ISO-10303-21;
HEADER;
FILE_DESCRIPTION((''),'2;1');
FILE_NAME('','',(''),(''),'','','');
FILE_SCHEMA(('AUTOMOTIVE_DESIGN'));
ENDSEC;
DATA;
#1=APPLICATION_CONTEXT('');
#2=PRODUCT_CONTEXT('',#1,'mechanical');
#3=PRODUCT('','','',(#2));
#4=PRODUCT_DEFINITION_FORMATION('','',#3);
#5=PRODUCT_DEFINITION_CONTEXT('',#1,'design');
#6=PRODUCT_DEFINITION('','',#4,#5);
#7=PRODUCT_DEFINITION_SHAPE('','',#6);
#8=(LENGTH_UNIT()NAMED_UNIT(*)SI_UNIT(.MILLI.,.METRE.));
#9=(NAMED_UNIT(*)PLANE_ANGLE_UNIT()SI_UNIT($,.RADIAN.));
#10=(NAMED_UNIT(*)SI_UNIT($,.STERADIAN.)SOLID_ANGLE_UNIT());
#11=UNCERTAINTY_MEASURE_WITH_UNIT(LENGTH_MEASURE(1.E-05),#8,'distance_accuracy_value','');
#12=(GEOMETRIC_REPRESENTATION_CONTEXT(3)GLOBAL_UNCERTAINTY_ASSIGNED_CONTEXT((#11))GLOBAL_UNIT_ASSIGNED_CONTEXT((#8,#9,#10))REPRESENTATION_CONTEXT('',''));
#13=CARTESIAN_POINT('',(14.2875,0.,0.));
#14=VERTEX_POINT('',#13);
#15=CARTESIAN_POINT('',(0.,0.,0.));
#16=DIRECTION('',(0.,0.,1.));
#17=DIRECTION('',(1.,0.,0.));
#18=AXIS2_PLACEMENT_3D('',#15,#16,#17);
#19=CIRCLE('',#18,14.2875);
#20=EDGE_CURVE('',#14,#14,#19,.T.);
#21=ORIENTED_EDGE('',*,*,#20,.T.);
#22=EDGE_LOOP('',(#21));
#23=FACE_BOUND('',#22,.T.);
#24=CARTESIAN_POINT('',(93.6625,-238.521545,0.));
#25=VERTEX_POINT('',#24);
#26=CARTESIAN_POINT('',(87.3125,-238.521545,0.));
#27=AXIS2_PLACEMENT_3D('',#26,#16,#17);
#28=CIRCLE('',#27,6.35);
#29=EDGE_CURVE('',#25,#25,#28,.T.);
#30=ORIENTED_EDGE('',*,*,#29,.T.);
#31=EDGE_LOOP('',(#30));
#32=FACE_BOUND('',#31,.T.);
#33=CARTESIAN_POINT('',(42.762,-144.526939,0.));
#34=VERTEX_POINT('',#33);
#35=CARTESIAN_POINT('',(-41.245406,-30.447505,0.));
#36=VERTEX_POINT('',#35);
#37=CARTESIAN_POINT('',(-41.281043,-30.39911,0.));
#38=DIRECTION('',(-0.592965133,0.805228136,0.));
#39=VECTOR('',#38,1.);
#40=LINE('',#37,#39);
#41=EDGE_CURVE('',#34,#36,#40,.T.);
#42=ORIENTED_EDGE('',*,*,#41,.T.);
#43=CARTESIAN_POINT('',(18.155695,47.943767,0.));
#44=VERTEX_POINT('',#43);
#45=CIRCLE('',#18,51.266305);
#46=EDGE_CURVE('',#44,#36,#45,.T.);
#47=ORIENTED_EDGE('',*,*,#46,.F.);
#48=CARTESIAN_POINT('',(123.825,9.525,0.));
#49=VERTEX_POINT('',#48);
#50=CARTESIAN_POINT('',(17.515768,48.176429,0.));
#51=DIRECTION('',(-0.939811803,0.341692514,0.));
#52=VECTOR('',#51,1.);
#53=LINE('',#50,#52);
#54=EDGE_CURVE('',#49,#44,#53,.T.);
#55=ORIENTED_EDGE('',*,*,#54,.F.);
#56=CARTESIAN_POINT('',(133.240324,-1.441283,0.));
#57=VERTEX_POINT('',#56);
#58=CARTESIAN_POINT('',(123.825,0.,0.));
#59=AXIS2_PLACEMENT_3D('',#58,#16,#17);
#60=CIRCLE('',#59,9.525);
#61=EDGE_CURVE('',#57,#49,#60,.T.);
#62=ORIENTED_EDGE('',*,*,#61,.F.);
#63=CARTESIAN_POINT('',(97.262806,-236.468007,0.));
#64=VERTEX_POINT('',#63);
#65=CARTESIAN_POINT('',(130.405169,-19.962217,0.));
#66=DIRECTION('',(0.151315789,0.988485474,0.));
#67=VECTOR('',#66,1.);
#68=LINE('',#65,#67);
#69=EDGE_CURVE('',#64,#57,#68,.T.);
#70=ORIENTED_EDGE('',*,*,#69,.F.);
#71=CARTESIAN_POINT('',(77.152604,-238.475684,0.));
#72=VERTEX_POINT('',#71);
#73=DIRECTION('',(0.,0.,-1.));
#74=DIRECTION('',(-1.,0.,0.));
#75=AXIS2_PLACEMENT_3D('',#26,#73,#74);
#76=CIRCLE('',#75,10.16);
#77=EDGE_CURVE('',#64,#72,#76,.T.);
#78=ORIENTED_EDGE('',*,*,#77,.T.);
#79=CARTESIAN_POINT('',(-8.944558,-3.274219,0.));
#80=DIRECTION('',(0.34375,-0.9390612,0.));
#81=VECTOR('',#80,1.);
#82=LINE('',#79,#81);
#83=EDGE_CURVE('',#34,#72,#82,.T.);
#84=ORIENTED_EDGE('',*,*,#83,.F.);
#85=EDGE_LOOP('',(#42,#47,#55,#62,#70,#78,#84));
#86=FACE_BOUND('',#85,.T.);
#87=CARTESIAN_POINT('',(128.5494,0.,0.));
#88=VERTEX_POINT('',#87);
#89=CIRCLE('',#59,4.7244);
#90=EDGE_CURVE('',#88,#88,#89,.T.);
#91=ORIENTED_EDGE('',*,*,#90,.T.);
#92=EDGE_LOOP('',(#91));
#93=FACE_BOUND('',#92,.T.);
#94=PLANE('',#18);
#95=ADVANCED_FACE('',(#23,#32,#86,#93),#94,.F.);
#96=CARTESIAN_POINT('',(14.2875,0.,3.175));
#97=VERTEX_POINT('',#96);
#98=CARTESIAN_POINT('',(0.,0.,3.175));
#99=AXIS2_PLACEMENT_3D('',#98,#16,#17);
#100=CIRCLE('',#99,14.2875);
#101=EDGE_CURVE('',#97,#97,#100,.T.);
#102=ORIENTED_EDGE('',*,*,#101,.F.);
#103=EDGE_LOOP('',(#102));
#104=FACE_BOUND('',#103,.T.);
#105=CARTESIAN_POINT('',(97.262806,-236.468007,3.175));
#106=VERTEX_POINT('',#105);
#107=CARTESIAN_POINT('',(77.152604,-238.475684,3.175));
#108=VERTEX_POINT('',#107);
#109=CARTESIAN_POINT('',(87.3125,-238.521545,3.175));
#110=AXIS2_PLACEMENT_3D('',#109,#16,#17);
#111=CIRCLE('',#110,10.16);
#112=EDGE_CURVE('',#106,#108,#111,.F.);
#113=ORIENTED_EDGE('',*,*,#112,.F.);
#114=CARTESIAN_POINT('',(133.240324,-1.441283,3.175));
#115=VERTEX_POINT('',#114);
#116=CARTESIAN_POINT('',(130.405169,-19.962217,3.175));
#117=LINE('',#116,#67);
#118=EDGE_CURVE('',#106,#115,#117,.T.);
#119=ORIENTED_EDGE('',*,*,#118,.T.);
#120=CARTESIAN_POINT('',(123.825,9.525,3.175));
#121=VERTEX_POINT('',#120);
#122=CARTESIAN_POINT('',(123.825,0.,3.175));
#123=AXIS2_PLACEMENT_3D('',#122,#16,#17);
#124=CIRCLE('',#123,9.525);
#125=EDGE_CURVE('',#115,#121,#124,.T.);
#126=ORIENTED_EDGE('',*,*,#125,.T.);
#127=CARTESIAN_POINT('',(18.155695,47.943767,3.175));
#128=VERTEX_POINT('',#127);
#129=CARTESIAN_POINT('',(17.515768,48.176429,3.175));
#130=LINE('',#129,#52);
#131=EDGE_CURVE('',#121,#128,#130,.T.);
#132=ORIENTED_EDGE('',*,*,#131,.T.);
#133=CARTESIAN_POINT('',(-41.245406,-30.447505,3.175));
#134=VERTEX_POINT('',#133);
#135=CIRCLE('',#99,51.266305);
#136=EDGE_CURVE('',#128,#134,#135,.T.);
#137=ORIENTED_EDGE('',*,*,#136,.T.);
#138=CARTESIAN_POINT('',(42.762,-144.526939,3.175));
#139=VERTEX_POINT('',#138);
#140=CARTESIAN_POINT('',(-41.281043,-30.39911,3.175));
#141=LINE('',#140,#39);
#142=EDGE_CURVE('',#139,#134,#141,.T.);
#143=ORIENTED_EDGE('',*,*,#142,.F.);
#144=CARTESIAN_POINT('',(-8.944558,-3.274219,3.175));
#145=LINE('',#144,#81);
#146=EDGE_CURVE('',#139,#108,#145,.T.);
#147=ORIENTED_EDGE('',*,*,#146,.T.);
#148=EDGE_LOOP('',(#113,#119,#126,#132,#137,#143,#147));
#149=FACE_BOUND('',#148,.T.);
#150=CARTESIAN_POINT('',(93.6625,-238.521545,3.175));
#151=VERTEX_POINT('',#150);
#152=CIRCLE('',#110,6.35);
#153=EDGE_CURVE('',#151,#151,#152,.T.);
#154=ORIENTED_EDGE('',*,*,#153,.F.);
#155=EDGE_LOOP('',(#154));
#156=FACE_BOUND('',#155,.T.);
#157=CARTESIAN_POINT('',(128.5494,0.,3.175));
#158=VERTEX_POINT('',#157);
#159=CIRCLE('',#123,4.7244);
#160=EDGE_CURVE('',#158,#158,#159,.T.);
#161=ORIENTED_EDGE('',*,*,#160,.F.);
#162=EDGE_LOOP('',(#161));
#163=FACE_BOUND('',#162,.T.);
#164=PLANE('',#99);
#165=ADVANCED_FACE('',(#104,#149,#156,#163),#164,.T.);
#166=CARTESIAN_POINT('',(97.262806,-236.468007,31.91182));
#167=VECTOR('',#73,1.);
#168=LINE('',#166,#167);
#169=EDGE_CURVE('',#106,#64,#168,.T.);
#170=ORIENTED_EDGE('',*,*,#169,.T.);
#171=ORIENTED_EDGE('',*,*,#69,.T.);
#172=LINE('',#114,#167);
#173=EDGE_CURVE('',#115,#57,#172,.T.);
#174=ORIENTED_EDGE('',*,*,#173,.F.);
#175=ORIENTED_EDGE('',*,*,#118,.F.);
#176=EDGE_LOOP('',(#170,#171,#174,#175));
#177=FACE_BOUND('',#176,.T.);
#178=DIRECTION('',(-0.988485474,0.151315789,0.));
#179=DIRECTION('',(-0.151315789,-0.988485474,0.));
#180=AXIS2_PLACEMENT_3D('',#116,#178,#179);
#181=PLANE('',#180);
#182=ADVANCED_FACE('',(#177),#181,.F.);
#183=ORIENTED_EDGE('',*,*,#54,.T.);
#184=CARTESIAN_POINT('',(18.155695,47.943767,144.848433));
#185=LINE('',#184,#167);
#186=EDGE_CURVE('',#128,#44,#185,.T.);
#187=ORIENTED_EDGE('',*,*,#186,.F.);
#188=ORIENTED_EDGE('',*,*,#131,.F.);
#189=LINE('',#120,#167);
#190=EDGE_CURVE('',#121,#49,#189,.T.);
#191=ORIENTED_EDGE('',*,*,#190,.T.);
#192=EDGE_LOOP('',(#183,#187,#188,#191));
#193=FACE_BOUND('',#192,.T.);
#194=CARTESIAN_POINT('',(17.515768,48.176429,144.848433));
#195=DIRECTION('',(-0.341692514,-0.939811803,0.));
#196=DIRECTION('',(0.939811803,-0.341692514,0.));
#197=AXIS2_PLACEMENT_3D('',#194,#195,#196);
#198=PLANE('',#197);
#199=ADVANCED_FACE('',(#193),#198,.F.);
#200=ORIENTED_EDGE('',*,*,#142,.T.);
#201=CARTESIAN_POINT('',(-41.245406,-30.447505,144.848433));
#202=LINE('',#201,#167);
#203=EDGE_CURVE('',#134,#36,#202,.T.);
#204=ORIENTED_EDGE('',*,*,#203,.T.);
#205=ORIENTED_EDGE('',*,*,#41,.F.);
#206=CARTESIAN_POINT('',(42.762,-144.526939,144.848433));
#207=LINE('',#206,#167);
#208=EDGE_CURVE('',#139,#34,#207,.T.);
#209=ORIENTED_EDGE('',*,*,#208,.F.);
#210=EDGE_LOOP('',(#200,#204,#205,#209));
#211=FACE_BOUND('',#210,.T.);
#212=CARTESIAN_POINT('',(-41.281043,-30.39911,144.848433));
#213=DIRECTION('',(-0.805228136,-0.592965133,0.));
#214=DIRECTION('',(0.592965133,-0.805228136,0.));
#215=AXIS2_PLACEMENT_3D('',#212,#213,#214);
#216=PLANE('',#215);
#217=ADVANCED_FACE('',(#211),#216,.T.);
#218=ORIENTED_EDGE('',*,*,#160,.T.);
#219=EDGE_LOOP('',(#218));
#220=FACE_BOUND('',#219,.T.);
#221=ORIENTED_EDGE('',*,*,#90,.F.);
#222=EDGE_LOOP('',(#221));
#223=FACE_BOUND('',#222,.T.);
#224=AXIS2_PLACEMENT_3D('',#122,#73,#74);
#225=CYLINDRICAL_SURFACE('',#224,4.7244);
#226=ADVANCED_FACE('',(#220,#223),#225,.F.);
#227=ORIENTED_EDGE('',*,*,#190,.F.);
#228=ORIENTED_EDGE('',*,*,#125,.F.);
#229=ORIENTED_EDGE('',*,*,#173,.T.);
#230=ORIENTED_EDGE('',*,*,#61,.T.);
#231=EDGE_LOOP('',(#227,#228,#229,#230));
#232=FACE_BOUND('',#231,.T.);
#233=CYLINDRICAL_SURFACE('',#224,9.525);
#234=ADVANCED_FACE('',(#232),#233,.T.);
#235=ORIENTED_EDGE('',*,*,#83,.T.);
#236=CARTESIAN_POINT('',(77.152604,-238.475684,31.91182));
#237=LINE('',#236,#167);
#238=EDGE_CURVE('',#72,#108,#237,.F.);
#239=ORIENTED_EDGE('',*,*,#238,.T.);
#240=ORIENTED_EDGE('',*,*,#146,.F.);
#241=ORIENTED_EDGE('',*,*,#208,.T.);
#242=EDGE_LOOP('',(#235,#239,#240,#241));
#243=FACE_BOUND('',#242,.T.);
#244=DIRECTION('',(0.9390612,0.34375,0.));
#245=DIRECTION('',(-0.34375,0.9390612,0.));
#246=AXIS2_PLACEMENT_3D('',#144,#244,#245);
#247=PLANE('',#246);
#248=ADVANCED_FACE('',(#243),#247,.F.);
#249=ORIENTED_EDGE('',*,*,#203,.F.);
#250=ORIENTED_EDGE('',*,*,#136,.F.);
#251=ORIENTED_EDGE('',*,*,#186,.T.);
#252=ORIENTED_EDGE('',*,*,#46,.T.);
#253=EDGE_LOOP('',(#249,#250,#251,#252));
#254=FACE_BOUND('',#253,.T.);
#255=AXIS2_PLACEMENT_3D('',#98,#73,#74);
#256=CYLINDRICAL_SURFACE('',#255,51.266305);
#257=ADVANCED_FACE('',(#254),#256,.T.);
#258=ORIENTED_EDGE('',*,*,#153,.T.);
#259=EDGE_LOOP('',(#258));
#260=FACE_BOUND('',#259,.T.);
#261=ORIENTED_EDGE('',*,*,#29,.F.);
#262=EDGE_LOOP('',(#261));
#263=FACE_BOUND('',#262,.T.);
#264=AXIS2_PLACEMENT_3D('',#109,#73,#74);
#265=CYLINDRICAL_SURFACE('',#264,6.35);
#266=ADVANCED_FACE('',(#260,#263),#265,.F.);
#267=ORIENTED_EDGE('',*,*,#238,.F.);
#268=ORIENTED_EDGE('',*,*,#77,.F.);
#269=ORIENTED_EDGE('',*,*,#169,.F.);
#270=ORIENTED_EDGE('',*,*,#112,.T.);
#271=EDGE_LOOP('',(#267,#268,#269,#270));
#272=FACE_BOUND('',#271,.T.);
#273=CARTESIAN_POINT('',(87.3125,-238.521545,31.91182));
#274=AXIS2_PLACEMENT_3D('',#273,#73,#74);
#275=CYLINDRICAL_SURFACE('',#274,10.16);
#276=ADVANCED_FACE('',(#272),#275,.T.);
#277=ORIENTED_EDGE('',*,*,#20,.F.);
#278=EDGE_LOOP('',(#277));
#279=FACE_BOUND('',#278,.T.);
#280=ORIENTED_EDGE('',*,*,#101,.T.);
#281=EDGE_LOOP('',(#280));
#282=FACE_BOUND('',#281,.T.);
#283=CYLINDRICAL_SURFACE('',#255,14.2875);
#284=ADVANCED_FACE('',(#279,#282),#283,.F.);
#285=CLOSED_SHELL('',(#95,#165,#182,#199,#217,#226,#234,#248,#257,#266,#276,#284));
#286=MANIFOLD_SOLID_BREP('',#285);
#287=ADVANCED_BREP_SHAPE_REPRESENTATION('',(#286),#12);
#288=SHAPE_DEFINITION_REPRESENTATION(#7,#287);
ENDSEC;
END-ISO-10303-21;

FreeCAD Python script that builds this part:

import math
import FreeCAD as App
import Part
import Sketcher
from FreeCAD import Vector
Q = App.Units.Quantity

doc = App.newDocument("Part")
body = doc.addObject("PartDesign::Body", "Body")

# Sketch on XY plane
sketch1 = body.newObject("Sketcher::SketchObject", "Sketch")
sketch1.AttachmentSupport = (doc.getObject("XY_Plane"), [""])
sketch1.MapMode = "FlatFace"
sketch1.addGeometry([
    Part.LineSegment(Vector(123.8, 9.5, 0), Vector(50.4, 9.5, 0)),  # 0
    Part.ArcOfCircle(Part.Circle(Vector(0, 0, 0), Vector(0, 0, 1), 51.3), math.radians(11), math.radians(279)),  # 1
    Part.LineSegment(Vector(8.4, -50.6, 0), Vector(78.4, -241.8, 0)),  # 2
    Part.ArcOfCircle(Part.Circle(Vector(87.3, -238.5, 0), Vector(0, 0, 1), 9.5), math.radians(-160), math.radians(-9)),  # 3
    Part.LineSegment(Vector(96.7, -240, 0), Vector(133.2, -1.4, 0)),  # 4
    Part.ArcOfCircle(Part.Circle(Vector(123.8, 0, 0), Vector(0, 0, 1), 9.5), math.radians(-9), math.radians(90)),  # 5
    Part.Circle(Vector(87.3, -238.5, 0), Vector(0, 0, 1), 6.3),  # 6
    Part.Circle(Vector(0, 0, 0), Vector(0, 0, 1), 14.3),  # 7
    Part.Circle(Vector(123.8, 0, 0), Vector(0, 0, 1), 4.7),  # 8
], False)
sketch1.addConstraint([
    Sketcher.Constraint("Coincident", 0, 2, 1, 1),
    Sketcher.Constraint("Coincident", 1, 2, 2, 1),
    Sketcher.Constraint("Tangent", 2, 2, 3, 1),
    Sketcher.Constraint("Tangent", 3, 2, 4, 1),
    Sketcher.Constraint("Tangent", 4, 2, 5, 1),
    Sketcher.Constraint("Tangent", 5, 2, 0, 1),
    Sketcher.Constraint("Horizontal", 0),
    Sketcher.Constraint("Coincident", 1, 3, -1, 1),
    Sketcher.Constraint("Coincident", 7, 3, -1, 1),
    Sketcher.Constraint("Coincident", 6, 3, 3, 3),
    Sketcher.Constraint("Coincident", 8, 3, 5, 3),
    Sketcher.Constraint("Equal", 3, 5),
    Sketcher.Constraint("PointOnObject", 5, 3, -1),
    Sketcher.Constraint("Diameter", 6, Q("0.5 in")),
    Sketcher.Constraint("Diameter", 7, Q("1.125 in")),
    Sketcher.Constraint("Diameter", 8, Q("0.372 in")),
    Sketcher.Constraint("Radius", 3, Q("0.375 in")),
    Sketcher.Constraint("Distance", 4, Q("9.5 in")),
    Sketcher.Constraint("DistanceX", -1, 1, 3, 3, Q("3.4375 in")),
    Sketcher.Constraint("DistanceX", -1, 1, 5, 3, Q("4.875 in")),
    Sketcher.Constraint("Radius", 1, 51.266305),
    Sketcher.Constraint("DistanceX", 1, 2, 0, 2, 42.00229),
])
pad1 = body.newObject("PartDesign::Pad", "Pad")
pad1.Profile = sketch1
pad1.Length = Q("0.125 in")

# Sketch on XY plane
sketch2 = body.newObject("Sketcher::SketchObject", "Sketch001")
sketch2.AttachmentSupport = (doc.getObject("XY_Plane"), [""])
sketch2.MapMode = "FlatFace"
sketch2.addGeometry([
    Part.Circle(Vector(87, -239, 0), Vector(0, 0, 1), 10),
    Part.Circle(Vector(87, -239, 0), Vector(0, 0, 1), 10),
], False)
sketch2.addConstraint([
    Sketcher.Constraint("Coincident", 1, 3, 0, 3),
    Sketcher.Constraint("Diameter", 0, Q("0.8 in")),
    Sketcher.Constraint("Diameter", 1, Q("0.75 in")),
    Sketcher.Constraint("DistanceX", -1, 1, 0, 3, Q("3.4375 in")),
    Sketcher.Constraint("DistanceY", 0, 3, -1, 1, 238.521545),
])
pad2 = body.newObject("PartDesign::Pad", "Pad001")
pad2.Profile = sketch2
pad2.Length = Q("0.125 in")

# Sketch on XY plane
sketch3 = body.newObject("Sketcher::SketchObject", "Sketch002")
sketch3.AttachmentSupport = (doc.getObject("XY_Plane"), [""])
sketch3.MapMode = "FlatFace"
sketch3.addGeometry([
    Part.ArcOfCircle(Part.Circle(Vector(0, 0, 0), Vector(0, 0, 1), 51), math.radians(11), math.radians(69)),  # 0
    Part.LineSegment(Vector(18, 48, 0), Vector(124, 10, 0)),  # 1
    Part.LineSegment(Vector(124, 10, 0), Vector(50, 10, 0)),  # 2
    Part.LineSegment(Vector(8, -51, 0), Vector(43, -145, 0)),  # 3
    Part.LineSegment(Vector(43, -145, 0), Vector(-41, -30, 0)),  # 4
    Part.ArcOfCircle(Part.Circle(Vector(0, 0, 0), Vector(0, 0, 1), 51), math.radians(-144), math.radians(-81)),  # 5
], False)
sketch3.addConstraint([
    Sketcher.Constraint("Coincident", 0, 2, 1, 1),
    Sketcher.Constraint("Coincident", 1, 2, 2, 1),
    Sketcher.Constraint("Coincident", 2, 2, 0, 1),
    Sketcher.Constraint("Coincident", 3, 2, 4, 1),
    Sketcher.Constraint("Coincident", 4, 2, 5, 1),
    Sketcher.Constraint("Coincident", 5, 2, 3, 1),
    Sketcher.Constraint("Horizontal", 2),
    Sketcher.Constraint("Coincident", 0, 3, -1, 1),
    Sketcher.Constraint("Coincident", 5, 3, -1, 1),
    Sketcher.Constraint("Equal", 0, 5),
    Sketcher.Constraint("DistanceX", -1, 1, 1, 2, Q("4.875 in")),
    Sketcher.Constraint("DistanceY", -1, 1, 1, 2, Q("0.375 in")),
    Sketcher.Constraint("Radius", 0, 51.266305),
    Sketcher.Constraint("DistanceX", -1, 1, 3, 2, 42.762),
    Sketcher.Constraint("DistanceX", 4, 2, 0, 2, 59.4011),
    Sketcher.Constraint("Distance", 3, 100.045391),
    Sketcher.Constraint("DistanceY", 3, 2, -1, 1, 144.526939),
    Sketcher.Constraint("DistanceY", 4, 2, 0, 2, 78.391272),
])
pad3 = body.newObject("PartDesign::Pad", "Pad002")
pad3.Profile = sketch3
pad3.Length = Q("0.125 in")

doc.recompute()
